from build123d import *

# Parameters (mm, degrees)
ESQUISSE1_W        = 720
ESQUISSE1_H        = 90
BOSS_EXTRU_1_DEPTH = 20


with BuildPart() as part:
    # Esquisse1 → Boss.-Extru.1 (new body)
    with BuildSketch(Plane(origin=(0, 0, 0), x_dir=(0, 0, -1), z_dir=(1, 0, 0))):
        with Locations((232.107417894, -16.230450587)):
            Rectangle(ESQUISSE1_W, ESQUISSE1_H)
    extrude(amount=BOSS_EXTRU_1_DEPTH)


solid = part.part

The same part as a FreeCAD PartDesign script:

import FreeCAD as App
import Part
import Sketcher

V = App.Vector


def add_polygon(sketch, points):
    """Adds a closed chain of lines whose ends are joined by coincident constraints."""
    first, n = sketch.GeometryCount, len(points)
    for a, b in zip(points, points[1:] + points[:1]):
        sketch.addGeometry(Part.LineSegment(App.Vector(*a, 0), App.Vector(*b, 0)), False)
    for i in range(n):
        sketch.addConstraint(Sketcher.Constraint("Coincident", first + i, 2, first + (i + 1) % n, 1))

doc = App.newDocument("Part")
body = doc.addObject("PartDesign::Body", "Body")

sketch1 = doc.addObject("Sketcher::SketchObject", "Sketch")
body.addObject(sketch1)
sketch1.AttachmentSupport = (doc.YZ_Plane, [""])
sketch1.MapMode = "FlatFace"
add_polygon(sketch1, [(29, 128), (-61, 128), (-61, -592), (29, -592)])
sketch1.addConstraint(Sketcher.Constraint("Horizontal", 0))
sketch1.addConstraint(Sketcher.Constraint("Vertical", 1))
sketch1.addConstraint(Sketcher.Constraint("Horizontal", 2))
sketch1.addConstraint(Sketcher.Constraint("Vertical", 3))
sketch1.addConstraint(Sketcher.Constraint("DistanceX", 0, 2, 0, 1, 90.0))
sketch1.addConstraint(Sketcher.Constraint("DistanceY", 1, 2, 1, 1, 720.0))
sketch1.addConstraint(Sketcher.Constraint("DistanceX", 0, 2, -1, 1, 61.230451))
sketch1.addConstraint(Sketcher.Constraint("DistanceY", -1, 1, 0, 2, 127.892582))
pad1 = doc.addObject("PartDesign::Pad", "Pad")
body.addObject(pad1)
pad1.Profile = sketch1
pad1.Length = 20

doc.recompute()
